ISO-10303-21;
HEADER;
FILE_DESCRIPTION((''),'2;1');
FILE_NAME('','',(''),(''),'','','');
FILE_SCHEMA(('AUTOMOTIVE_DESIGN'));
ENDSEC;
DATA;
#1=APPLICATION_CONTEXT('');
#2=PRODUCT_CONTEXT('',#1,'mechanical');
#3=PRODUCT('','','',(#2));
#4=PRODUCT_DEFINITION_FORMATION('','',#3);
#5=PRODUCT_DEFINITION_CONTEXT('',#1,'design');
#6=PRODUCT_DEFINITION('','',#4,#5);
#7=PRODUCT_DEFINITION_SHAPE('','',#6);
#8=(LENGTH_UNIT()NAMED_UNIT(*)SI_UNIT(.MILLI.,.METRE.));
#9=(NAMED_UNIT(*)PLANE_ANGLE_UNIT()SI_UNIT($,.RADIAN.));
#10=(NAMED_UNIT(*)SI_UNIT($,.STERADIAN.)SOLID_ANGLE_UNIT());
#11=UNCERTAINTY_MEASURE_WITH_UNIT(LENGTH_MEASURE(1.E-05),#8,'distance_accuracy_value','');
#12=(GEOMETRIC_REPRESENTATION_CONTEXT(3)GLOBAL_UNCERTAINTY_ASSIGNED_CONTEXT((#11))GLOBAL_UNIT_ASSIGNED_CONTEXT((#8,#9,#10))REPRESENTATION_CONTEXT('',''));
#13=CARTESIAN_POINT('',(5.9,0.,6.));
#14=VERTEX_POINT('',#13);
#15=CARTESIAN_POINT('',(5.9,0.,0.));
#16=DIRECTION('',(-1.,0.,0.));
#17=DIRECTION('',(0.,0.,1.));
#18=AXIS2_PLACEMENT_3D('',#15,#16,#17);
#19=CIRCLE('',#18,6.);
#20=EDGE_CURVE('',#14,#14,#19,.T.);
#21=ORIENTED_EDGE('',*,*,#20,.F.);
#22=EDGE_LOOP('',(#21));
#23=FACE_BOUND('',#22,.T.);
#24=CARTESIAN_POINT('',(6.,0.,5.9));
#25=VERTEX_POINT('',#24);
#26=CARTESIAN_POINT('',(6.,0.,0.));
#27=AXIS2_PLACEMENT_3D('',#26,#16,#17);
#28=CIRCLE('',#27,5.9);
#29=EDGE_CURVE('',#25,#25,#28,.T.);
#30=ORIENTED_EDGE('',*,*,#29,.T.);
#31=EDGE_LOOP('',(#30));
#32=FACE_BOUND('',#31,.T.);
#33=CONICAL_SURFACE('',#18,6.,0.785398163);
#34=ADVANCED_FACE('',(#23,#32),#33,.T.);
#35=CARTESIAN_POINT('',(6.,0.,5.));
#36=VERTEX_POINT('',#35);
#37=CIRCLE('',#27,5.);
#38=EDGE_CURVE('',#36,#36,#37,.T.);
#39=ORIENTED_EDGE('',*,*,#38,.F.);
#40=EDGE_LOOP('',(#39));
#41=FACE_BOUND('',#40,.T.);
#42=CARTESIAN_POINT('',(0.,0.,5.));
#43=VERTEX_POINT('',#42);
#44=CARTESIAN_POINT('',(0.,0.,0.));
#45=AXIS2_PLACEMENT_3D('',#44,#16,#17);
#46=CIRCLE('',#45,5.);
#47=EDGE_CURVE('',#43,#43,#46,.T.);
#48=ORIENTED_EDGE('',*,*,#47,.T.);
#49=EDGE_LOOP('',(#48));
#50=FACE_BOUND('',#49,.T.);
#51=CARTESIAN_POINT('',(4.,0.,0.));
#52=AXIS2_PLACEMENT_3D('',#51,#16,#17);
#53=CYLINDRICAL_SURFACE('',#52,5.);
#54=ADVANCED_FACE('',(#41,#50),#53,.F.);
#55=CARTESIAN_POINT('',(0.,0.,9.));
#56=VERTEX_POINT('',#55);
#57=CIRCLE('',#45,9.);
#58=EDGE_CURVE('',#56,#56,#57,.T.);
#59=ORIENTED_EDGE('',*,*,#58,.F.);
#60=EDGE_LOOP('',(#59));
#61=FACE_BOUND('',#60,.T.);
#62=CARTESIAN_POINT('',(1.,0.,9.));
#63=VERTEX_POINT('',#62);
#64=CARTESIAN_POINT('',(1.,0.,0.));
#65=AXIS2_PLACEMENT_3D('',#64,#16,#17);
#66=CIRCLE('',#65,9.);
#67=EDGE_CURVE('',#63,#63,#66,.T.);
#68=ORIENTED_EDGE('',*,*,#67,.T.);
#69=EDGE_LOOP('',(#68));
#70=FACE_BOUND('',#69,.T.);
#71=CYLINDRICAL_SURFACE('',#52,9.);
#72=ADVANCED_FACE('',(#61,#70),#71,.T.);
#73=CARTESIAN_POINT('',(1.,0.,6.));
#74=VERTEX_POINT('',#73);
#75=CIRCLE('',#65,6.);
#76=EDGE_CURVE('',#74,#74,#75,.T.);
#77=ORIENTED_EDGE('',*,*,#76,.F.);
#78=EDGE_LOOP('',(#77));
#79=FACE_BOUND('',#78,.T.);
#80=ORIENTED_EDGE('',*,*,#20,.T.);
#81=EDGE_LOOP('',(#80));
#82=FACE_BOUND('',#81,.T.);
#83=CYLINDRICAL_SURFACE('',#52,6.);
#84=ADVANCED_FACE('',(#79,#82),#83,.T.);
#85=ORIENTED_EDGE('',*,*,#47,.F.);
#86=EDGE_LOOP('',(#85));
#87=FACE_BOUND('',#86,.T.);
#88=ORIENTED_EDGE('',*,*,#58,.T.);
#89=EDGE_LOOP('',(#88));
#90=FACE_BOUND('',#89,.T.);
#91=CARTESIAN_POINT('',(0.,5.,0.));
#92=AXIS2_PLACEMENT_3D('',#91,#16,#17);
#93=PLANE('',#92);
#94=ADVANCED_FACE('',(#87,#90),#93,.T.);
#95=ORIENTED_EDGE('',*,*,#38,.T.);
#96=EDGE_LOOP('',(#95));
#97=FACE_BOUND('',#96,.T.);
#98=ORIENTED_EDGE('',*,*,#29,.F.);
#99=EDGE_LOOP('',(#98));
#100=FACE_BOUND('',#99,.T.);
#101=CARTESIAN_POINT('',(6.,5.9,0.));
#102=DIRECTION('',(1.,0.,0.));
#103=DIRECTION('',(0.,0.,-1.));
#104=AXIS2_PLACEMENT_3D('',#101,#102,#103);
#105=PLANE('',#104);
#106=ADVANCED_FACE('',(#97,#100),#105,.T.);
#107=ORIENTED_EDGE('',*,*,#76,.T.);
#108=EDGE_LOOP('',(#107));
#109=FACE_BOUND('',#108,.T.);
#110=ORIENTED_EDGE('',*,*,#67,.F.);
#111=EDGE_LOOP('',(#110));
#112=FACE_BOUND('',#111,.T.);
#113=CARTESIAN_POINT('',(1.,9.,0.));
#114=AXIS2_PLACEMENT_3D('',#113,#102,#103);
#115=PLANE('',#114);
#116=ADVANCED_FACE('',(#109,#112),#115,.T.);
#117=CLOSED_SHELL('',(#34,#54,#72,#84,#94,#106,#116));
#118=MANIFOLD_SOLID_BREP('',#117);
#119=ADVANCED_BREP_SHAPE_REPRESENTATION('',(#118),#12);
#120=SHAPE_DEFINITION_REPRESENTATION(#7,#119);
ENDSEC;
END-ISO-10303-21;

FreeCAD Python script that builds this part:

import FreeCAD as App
import Part
import Sketcher
Q = App.Units.Quantity


def add_polygon(sketch, points):
    """Adds a closed chain of lines whose ends are joined by coincident constraints."""
    first, n = sketch.GeometryCount, len(points)
    for a, b in zip(points, points[1:] + points[:1]):
        sketch.addGeometry(Part.LineSegment(App.Vector(*a, 0), App.Vector(*b, 0)), False)
    for i in range(n):
        sketch.addConstraint(Sketcher.Constraint("Coincident", first + i, 2, first + (i + 1) % n, 1))

doc = App.newDocument("Part")
body = doc.addObject("PartDesign::Body", "Body")

sketch1 = body.newObject("Sketcher::SketchObject", "Sketch")
sketch1.AttachmentSupport = (doc.getObject("XY_Plane"), [""])
sketch1.MapMode = "FlatFace"
add_polygon(sketch1, [(0, 9), (1, 9), (1, 6), (5.9, 6), (6, 5.9), (6, 5), (0, 5)])
sketch1.addConstraint([
    Sketcher.Constraint("Horizontal", 0),
    Sketcher.Constraint("Vertical", 1),
    Sketcher.Constraint("Horizontal", 2),
    Sketcher.Constraint("Vertical", 4),
    Sketcher.Constraint("Horizontal", 5),
    Sketcher.Constraint("Vertical", 6),
    Sketcher.Constraint("PointOnObject", 5, 2, -2),
    Sketcher.Constraint("DistanceX", 0, 1, 0, 2, 1.0),
    Sketcher.Constraint("DistanceX", 5, 2, 5, 1, 6.0),
    Sketcher.Constraint("DistanceY", 1, 2, 1, 1, 3.0),
    Sketcher.Constraint("DistanceY", 6, 1, 6, 2, 4.0),
    Sketcher.Constraint("Angle", 3, Q("-45 deg")),
    Sketcher.Constraint("DistanceX", 2, 1, 2, 2, 4.9),
    Sketcher.Constraint("DistanceY", -1, 1, 0, 2, 9.0),
])
revolution = body.newObject("PartDesign::Revolution", "Revolution")
revolution.Profile = sketch1
revolution.ReferenceAxis = (sketch1, ["H_Axis"])
revolution.Angle = 360

doc.recompute()
